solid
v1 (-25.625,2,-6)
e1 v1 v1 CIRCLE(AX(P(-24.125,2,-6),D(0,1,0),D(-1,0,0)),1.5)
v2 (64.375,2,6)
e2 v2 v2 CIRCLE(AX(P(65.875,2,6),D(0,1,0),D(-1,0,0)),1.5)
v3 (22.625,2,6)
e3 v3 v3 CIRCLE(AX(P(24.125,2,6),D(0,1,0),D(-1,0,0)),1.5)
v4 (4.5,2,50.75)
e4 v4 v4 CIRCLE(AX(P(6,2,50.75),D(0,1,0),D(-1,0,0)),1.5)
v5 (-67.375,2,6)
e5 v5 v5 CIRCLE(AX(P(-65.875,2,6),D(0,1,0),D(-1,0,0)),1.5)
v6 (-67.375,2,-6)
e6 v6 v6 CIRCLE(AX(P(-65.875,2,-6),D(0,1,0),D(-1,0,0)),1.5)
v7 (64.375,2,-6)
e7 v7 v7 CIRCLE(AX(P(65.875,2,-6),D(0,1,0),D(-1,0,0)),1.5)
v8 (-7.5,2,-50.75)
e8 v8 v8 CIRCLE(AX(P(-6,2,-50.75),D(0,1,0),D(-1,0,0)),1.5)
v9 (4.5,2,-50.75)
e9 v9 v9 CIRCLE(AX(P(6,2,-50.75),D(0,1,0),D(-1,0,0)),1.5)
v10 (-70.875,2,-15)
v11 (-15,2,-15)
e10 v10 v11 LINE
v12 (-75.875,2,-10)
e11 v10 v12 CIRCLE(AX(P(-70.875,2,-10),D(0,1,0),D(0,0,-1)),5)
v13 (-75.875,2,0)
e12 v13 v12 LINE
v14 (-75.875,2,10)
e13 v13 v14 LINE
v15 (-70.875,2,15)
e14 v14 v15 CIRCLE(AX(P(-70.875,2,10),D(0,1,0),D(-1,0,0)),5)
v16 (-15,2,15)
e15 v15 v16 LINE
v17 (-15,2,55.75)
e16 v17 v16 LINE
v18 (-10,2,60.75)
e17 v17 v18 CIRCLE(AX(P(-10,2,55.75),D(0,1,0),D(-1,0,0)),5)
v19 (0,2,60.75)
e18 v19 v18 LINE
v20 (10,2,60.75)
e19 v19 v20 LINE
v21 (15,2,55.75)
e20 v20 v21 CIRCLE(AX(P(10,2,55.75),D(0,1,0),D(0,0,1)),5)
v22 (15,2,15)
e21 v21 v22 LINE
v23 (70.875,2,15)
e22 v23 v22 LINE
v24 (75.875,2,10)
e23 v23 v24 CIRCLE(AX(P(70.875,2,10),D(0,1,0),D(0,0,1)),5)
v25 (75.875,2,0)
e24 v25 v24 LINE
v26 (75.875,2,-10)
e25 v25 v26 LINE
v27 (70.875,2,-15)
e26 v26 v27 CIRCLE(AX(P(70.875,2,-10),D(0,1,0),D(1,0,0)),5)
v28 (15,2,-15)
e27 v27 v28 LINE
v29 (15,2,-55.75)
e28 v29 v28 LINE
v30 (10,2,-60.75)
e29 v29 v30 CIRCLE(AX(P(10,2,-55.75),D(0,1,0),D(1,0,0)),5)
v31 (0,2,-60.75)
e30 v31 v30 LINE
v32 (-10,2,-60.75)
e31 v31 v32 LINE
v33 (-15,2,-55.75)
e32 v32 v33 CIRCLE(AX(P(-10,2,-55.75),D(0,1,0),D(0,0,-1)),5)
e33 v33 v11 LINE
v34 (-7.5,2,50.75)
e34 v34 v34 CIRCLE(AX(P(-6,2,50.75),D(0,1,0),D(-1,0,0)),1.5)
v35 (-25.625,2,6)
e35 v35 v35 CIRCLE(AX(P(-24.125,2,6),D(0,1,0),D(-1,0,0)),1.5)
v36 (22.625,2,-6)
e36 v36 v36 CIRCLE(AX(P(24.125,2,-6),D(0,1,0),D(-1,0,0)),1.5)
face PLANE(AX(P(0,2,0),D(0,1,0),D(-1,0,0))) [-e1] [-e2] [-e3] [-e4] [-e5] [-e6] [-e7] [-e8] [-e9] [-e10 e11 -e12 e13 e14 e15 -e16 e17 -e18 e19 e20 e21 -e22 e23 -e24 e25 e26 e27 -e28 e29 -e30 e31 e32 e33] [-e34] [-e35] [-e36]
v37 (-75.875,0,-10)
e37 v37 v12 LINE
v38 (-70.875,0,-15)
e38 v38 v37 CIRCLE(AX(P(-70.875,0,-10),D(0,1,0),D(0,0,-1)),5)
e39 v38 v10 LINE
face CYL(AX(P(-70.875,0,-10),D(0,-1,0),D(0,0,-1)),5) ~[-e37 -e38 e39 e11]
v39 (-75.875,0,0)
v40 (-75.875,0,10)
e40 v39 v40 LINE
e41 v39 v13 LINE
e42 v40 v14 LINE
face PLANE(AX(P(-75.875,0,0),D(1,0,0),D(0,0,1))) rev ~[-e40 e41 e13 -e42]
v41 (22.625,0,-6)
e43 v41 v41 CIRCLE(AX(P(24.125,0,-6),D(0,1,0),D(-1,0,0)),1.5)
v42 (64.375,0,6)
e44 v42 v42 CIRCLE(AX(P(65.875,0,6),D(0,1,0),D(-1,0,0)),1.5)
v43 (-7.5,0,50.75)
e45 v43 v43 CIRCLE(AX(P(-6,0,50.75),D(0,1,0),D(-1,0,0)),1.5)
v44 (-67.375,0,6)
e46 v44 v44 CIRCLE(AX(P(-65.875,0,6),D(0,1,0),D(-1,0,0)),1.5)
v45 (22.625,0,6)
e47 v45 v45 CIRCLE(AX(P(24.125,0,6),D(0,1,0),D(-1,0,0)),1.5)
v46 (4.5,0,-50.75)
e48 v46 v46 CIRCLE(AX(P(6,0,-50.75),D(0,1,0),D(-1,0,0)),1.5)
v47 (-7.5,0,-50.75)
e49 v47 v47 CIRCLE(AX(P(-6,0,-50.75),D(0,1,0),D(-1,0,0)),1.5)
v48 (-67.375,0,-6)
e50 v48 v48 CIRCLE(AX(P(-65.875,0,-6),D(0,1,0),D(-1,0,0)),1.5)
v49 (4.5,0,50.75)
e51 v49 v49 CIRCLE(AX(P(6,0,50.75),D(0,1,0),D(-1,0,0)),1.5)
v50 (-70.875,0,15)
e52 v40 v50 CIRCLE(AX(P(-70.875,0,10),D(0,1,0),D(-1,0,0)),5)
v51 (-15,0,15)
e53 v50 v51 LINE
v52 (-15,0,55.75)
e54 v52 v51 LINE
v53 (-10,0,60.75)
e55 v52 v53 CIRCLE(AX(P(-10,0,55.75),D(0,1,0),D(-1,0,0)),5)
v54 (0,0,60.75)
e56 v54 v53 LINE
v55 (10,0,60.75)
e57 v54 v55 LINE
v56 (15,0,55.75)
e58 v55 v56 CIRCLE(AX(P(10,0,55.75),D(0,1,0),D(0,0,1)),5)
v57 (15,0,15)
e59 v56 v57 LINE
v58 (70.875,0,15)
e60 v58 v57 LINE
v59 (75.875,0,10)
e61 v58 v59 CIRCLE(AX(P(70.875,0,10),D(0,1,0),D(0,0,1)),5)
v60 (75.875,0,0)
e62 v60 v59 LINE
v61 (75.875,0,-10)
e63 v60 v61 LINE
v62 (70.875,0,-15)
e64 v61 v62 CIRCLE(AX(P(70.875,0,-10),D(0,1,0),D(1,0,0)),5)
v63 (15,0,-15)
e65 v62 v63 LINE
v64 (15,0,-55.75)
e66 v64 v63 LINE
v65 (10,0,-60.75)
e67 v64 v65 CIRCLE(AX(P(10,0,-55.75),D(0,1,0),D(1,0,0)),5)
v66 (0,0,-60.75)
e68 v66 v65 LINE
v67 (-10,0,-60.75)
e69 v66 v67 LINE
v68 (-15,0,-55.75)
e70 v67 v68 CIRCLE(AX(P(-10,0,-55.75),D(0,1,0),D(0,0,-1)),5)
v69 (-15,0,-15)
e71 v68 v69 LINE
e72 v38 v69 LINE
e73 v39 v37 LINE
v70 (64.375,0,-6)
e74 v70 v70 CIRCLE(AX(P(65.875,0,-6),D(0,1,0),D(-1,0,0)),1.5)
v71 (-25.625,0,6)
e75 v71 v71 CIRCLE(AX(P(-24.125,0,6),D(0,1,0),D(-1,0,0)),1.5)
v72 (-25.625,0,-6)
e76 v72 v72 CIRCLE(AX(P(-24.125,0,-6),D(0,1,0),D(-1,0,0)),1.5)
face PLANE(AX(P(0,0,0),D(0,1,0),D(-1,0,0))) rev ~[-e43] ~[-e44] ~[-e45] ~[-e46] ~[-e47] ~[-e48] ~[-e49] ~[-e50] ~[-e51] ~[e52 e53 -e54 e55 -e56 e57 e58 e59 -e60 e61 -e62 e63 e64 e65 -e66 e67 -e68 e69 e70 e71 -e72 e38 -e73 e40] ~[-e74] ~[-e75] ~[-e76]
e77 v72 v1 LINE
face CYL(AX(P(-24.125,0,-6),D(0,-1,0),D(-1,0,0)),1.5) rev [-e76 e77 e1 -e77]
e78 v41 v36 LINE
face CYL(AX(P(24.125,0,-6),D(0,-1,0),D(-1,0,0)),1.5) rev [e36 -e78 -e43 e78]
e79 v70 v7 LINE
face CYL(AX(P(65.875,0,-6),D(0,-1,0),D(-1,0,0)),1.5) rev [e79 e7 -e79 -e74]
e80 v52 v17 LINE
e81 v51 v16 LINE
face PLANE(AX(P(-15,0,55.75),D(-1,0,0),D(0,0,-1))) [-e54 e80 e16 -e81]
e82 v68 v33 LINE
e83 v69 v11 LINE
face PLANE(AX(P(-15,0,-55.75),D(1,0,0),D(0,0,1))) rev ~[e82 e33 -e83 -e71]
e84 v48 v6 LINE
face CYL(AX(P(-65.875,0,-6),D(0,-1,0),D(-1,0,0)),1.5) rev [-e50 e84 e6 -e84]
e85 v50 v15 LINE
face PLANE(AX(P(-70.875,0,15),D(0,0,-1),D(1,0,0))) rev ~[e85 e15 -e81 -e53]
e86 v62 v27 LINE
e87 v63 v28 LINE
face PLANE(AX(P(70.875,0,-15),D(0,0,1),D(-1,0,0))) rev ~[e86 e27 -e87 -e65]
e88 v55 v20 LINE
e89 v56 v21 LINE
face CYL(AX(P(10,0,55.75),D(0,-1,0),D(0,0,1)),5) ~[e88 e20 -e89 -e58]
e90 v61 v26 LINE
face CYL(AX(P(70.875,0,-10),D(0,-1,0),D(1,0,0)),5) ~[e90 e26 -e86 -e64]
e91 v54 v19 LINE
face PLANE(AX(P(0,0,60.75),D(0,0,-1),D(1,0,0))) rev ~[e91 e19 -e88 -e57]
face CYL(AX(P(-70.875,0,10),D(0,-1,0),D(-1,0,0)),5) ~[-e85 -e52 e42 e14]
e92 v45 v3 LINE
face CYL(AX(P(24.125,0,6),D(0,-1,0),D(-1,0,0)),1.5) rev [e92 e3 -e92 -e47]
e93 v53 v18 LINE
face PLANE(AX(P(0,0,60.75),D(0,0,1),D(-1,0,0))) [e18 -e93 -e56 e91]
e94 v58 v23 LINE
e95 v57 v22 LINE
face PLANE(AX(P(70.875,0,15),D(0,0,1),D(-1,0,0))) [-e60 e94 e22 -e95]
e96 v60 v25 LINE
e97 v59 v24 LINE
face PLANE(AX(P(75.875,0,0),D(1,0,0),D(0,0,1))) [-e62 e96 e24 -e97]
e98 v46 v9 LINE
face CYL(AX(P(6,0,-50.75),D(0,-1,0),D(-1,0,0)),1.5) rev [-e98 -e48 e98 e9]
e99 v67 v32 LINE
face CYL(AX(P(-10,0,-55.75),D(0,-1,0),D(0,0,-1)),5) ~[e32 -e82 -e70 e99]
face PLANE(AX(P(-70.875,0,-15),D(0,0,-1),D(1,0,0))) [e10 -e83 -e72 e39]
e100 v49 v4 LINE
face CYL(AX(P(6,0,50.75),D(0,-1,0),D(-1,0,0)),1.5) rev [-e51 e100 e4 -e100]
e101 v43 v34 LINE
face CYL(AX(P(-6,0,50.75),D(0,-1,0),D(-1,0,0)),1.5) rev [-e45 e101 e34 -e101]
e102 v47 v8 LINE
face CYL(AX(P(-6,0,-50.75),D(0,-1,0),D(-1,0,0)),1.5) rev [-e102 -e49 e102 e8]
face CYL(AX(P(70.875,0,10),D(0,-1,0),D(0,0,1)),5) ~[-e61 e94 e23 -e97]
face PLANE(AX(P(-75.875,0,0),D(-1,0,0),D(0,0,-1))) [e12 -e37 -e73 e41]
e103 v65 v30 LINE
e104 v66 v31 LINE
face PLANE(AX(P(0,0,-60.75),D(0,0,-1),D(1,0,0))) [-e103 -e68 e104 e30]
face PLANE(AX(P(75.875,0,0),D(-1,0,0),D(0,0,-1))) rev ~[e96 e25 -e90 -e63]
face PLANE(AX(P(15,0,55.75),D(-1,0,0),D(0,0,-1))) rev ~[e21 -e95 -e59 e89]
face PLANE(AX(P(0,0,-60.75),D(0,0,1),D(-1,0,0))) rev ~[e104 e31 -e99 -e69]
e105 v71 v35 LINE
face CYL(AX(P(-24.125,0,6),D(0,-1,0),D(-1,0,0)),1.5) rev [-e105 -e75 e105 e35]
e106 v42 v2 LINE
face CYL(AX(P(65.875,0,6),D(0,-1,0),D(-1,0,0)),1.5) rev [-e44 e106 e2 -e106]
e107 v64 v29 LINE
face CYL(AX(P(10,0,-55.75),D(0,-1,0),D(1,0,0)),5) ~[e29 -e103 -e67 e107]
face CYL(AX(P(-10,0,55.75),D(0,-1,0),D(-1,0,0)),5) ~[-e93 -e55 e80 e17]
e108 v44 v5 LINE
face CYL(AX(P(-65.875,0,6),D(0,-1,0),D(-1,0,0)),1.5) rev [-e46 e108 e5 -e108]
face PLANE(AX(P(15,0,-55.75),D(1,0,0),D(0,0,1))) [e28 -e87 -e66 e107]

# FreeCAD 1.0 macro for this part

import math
import FreeCAD as App
import Part
import Sketcher

doc = App.newDocument("Part")
params = doc.addObject("Spreadsheet::Sheet", "Params")
for row, (alias, value) in enumerate([
    ("sketch1_diameter", "3 mm"),
    ("sketch1_radius", "5 mm"),
    ("pad1_length", "2 mm"),
], start=1):
    params.set(f"A{row}", alias)
    params.set(f"B{row}", "=" + value)
    params.setAlias(f"B{row}", alias)

body = doc.addObject("PartDesign::Body", "Body")

# Sketch on XZ plane
sketch1 = body.newObject("Sketcher::SketchObject", "Sketch")
sketch1.AttachmentSupport = (doc.getObject("XZ_Plane"), [""])
sketch1.MapMode = "FlatFace"
sketch1.addGeometry([
    Part.LineSegment(App.Vector(-75.875, -10, 0), App.Vector(-75.875, 10, 0)),  # 0
    Part.ArcOfCircle(Part.Circle(App.Vector(-70.875, 10, 0), App.Vector(0, 0, 1), 5), math.radians(90), math.radians(180)),  # 1
    Part.LineSegment(App.Vector(-70.875, 15, 0), App.Vector(-15, 15, 0)),  # 2
    Part.LineSegment(App.Vector(-15, 15, 0), App.Vector(-15, 55.75, 0)),  # 3
    Part.ArcOfCircle(Part.Circle(App.Vector(-10, 55.75, 0), App.Vector(0, 0, 1), 5), math.radians(90), math.radians(180)),  # 4
    Part.LineSegment(App.Vector(-10, 60.75, 0), App.Vector(10, 60.75, 0)),  # 5
    Part.ArcOfCircle(Part.Circle(App.Vector(10, 55.75, 0), App.Vector(0, 0, 1), 5), math.radians(0), math.radians(90)),  # 6
    Part.LineSegment(App.Vector(15, 55.75, 0), App.Vector(15, 15, 0)),  # 7
    Part.LineSegment(App.Vector(15, 15, 0), App.Vector(70.875, 15, 0)),  # 8
    Part.ArcOfCircle(Part.Circle(App.Vector(70.875, 10, 0), App.Vector(0, 0, 1), 5), math.radians(0), math.radians(90)),  # 9
    Part.LineSegment(App.Vector(75.875, 10, 0), App.Vector(75.875, -10, 0)),  # 10
    Part.ArcOfCircle(Part.Circle(App.Vector(70.875, -10, 0), App.Vector(0, 0, 1), 5), math.radians(-90), math.radians(0)),  # 11
    Part.LineSegment(App.Vector(70.875, -15, 0), App.Vector(15, -15, 0)),  # 12
    Part.LineSegment(App.Vector(15, -15, 0), App.Vector(15, -55.75, 0)),  # 13
    Part.ArcOfCircle(Part.Circle(App.Vector(10, -55.75, 0), App.Vector(0, 0, 1), 5), math.radians(-90), math.radians(0)),  # 14
    Part.LineSegment(App.Vector(10, -60.75, 0), App.Vector(-10, -60.75, 0)),  # 15
    Part.ArcOfCircle(Part.Circle(App.Vector(-10, -55.75, 0), App.Vector(0, 0, 1), 5), math.radians(180), math.radians(270)),  # 16
    Part.LineSegment(App.Vector(-15, -55.75, 0), App.Vector(-15, -15, 0)),  # 17
    Part.LineSegment(App.Vector(-15, -15, 0), App.Vector(-70.875, -15, 0)),  # 18
    Part.ArcOfCircle(Part.Circle(App.Vector(-70.875, -10, 0), App.Vector(0, 0, 1), 5), math.radians(180), math.radians(270)),  # 19
    Part.Circle(App.Vector(6, -50.75, 0), App.Vector(0, 0, 1), 1.5),  # 20
    Part.Circle(App.Vector(65.875, -6, 0), App.Vector(0, 0, 1), 1.5),  # 21
    Part.Circle(App.Vector(24.125, -6, 0), App.Vector(0, 0, 1), 1.5),  # 22
    Part.Circle(App.Vector(-6, -50.75, 0), App.Vector(0, 0, 1), 1.5),  # 23
    Part.Circle(App.Vector(-24.125, -6, 0), App.Vector(0, 0, 1), 1.5),  # 24
    Part.Circle(App.Vector(-65.875, -6, 0), App.Vector(0, 0, 1), 1.5),  # 25
    Part.Circle(App.Vector(65.875, 6, 0), App.Vector(0, 0, 1), 1.5),  # 26
    Part.Circle(App.Vector(24.125, 6, 0), App.Vector(0, 0, 1), 1.5),  # 27
    Part.Circle(App.Vector(6, 50.75, 0), App.Vector(0, 0, 1), 1.5),  # 28
    Part.Circle(App.Vector(-24.125, 6, 0), App.Vector(0, 0, 1), 1.5),  # 29
    Part.Circle(App.Vector(-65.875, 6, 0), App.Vector(0, 0, 1), 1.5),  # 30
    Part.Circle(App.Vector(-6, 50.75, 0), App.Vector(0, 0, 1), 1.5),  # 31
], False)
sketch1.addConstraint([
    Sketcher.Constraint("Tangent", 0, 2, 1, 2),
    Sketcher.Constraint("Tangent", 1, 1, 2, 1),
    Sketcher.Constraint("Coincident", 2, 2, 3, 1),
    Sketcher.Constraint("Tangent", 3, 2, 4, 2),
    Sketcher.Constraint("Tangent", 4, 1, 5, 1),
    Sketcher.Constraint("Tangent", 5, 2, 6, 2),
    Sketcher.Constraint("Tangent", 6, 1, 7, 1),
    Sketcher.Constraint("Coincident", 7, 2, 8, 1),
    Sketcher.Constraint("Tangent", 8, 2, 9, 2),
    Sketcher.Constraint("Tangent", 9, 1, 10, 1),
    Sketcher.Constraint("Tangent", 10, 2, 11, 2),
    Sketcher.Constraint("Tangent", 11, 1, 12, 1),
    Sketcher.Constraint("Coincident", 12, 2, 13, 1),
    Sketcher.Constraint("Tangent", 13, 2, 14, 2),
    Sketcher.Constraint("Tangent", 14, 1, 15, 1),
    Sketcher.Constraint("Tangent", 15, 2, 16, 2),
    Sketcher.Constraint("Tangent", 16, 1, 17, 1),
    Sketcher.Constraint("Coincident", 17, 2, 18, 1),
    Sketcher.Constraint("Tangent", 18, 2, 19, 2),
    Sketcher.Constraint("Tangent", 19, 1, 0, 1),
    Sketcher.Constraint("Vertical", 0),
    Sketcher.Constraint("Horizontal", 2),
    Sketcher.Constraint("Vertical", 3),
    Sketcher.Constraint("Horizontal", 5),
    Sketcher.Constraint("Vertical", 7),
    Sketcher.Constraint("Horizontal", 8),
    Sketcher.Constraint("Vertical", 10),
    Sketcher.Constraint("Horizontal", 12),
    Sketcher.Constraint("Vertical", 13),
    Sketcher.Constraint("Horizontal", 15),
    Sketcher.Constraint("Vertical", 17),
    Sketcher.Constraint("Horizontal", 18),
    Sketcher.Constraint("Equal", 1, 4),
    Sketcher.Constraint("Equal", 4, 6),
    Sketcher.Constraint("Equal", 6, 9),
    Sketcher.Constraint("Equal", 9, 11),
    Sketcher.Constraint("Equal", 11, 14),
    Sketcher.Constraint("Equal", 14, 16),
    Sketcher.Constraint("Equal", 16, 19),
    Sketcher.Constraint("Equal", 20, 21),
    Sketcher.Constraint("Equal", 21, 22),
    Sketcher.Constraint("Equal", 22, 23),
    Sketcher.Constraint("Equal", 23, 24),
    Sketcher.Constraint("Equal", 24, 25),
    Sketcher.Constraint("Equal", 25, 26),
    Sketcher.Constraint("Equal", 26, 27),
    Sketcher.Constraint("Equal", 27, 28),
    Sketcher.Constraint("Equal", 28, 29),
    Sketcher.Constraint("Equal", 29, 30),
    Sketcher.Constraint("Equal", 30, 31),
    Sketcher.Constraint("Symmetric", 1, 3, 11, 3, -1, 1),
    Sketcher.Constraint("Symmetric", 4, 3, 14, 3, -1, 1),
    Sketcher.Constraint("Symmetric", 25, 3, 26, 3, -1, 1),
    Sketcher.Constraint("Symmetric", 24, 3, 27, 3, -1, 1),
    Sketcher.Constraint("Symmetric", 23, 3, 28, 3, -1, 1),
    Sketcher.Constraint("Symmetric", 22, 3, 29, 3, -1, 1),
    Sketcher.Constraint("Symmetric", 21, 3, 30, 3, -1, 1),
    Sketcher.Constraint("Symmetric", 20, 3, 31, 3, -1, 1),
    Sketcher.Constraint("Symmetric", 7, 2, 17, 2, -1, 1),
    Sketcher.Constraint("Symmetric", 20, 3, 23, 3, -2),
    Sketcher.Constraint("Symmetric", 22, 3, 24, 3, -2),
    Sketcher.Constraint("Symmetric", 21, 3, 25, 3, -2),
    Sketcher.Constraint("Symmetric", 2, 2, 7, 2, -2),
    Sketcher.Constraint("Horizontal", 21, 3, 22, 3),
    Sketcher.Constraint("Equal", 15, 0),
    Sketcher.Constraint("Diameter", 20, 3.0),
    Sketcher.Constraint("Radius", 1, 5.0),
    Sketcher.Constraint("DistanceY", -1, 1, 1, 3, 10.0),
    Sketcher.Constraint("DistanceX", -1, 1, 20, 3, 6.0),
    Sketcher.Constraint("DistanceY", 21, 3, -1, 1, 6.0),
    Sketcher.Constraint("DistanceY", 14, 3, 20, 3, 5.0),
    Sketcher.Constraint("DistanceX", 21, 3, 11, 3, 5.0),
    Sketcher.Constraint("DistanceY", 20, 3, -1, 1, 50.75),
    Sketcher.Constraint("DistanceX", 22, 3, 21, 3, 41.75),
    Sketcher.Constraint("DistanceX", -1, 1, 22, 3, 24.125),
])
sketch1.setExpression("Constraints[65]", "Params.sketch1_diameter")
sketch1.setExpression("Constraints[66]", "Params.sketch1_radius")
pad1 = body.newObject("PartDesign::Pad", "Pad")
pad1.Profile = sketch1
pad1.setExpression("Length", "Params.pad1_length")
pad1.Reversed = True

doc.recompute()
